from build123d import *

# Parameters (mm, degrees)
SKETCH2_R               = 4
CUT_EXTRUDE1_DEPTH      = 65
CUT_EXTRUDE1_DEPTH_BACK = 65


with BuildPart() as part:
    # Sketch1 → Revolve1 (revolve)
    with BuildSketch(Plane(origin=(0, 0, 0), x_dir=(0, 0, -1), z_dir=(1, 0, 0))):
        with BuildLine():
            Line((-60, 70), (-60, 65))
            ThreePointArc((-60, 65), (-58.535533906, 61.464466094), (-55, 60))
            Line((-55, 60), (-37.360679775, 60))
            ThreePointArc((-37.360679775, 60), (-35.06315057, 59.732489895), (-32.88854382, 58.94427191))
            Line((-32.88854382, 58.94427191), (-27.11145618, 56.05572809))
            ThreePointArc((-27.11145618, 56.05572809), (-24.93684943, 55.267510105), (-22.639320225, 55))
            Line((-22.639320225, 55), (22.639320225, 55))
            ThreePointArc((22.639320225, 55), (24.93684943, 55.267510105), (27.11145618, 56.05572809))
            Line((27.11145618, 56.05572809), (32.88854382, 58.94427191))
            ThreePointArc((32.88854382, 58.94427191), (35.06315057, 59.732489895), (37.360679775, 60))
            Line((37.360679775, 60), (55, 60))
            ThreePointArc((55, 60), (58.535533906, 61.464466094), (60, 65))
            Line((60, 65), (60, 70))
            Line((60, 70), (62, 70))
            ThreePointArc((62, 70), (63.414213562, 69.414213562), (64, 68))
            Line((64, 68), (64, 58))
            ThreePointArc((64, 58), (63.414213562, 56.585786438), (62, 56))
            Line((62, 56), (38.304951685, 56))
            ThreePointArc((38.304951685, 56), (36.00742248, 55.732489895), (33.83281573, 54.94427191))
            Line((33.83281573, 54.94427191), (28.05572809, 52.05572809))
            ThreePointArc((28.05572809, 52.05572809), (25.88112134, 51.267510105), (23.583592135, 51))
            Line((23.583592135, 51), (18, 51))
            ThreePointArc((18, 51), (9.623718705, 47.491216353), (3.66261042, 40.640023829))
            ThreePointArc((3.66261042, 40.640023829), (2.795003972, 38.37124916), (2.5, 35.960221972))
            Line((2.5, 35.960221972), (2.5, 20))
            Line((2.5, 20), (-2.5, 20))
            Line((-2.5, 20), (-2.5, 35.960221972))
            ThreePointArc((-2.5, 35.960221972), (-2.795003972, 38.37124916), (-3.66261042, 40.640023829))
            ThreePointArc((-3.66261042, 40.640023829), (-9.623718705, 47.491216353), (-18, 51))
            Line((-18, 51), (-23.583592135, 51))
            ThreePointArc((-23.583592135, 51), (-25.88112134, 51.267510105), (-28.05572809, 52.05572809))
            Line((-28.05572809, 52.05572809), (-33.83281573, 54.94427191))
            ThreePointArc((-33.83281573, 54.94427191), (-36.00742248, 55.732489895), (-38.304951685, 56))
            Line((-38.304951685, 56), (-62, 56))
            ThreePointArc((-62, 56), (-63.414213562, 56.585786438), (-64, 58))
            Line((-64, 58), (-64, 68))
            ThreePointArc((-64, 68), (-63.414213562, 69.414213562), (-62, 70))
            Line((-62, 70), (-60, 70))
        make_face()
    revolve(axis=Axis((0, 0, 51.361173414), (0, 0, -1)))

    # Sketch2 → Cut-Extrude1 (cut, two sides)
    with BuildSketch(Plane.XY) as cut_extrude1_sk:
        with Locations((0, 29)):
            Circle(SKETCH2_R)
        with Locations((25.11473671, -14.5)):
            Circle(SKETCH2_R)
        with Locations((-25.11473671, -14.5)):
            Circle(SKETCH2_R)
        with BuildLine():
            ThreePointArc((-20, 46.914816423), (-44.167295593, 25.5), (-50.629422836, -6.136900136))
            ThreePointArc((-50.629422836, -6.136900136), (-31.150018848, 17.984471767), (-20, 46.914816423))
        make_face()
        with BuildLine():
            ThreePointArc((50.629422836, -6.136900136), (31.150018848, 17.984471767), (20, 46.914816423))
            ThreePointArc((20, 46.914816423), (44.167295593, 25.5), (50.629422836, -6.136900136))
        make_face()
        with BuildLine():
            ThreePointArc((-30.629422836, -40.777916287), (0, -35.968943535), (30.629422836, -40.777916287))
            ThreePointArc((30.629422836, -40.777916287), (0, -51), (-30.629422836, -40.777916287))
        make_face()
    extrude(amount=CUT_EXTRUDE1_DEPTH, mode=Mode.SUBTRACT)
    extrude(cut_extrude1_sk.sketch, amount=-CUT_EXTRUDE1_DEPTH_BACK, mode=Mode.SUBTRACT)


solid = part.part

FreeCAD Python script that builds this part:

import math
import FreeCAD as App
import Part
import Sketcher
from FreeCAD import Vector

doc = App.newDocument("Part")
params = doc.addObject("Spreadsheet::Sheet", "Params")
for row, (alias, value) in enumerate([
    ("sketch1_radius", "2 mm"),
    ("sketch1_radius2", "10 mm"),
    ("sketch1_radius3", "20 mm"),
    ("sketch1_radius4", "5 mm"),
    ("sketch1_width", "5 mm"),
    ("revolution_angle", "360 deg"),
    ("sketch2_diameter", "8 mm"),
    ("sketch2_radius", "51 mm"),
], start=1):
    params.set(f"A{row}", alias)
    params.set(f"B{row}", "=" + value)
    params.setAlias(f"B{row}", alias)

body = doc.addObject("PartDesign::Body", "Body")

# Sketch on YZ plane
sketch1 = body.newObject("Sketcher::SketchObject", "Sketch")
sketch1.AttachmentSupport = (doc.getObject("YZ_Plane"), [""])
sketch1.MapMode = "FlatFace"
sketch1.addGeometry(Part.LineSegment(Vector(65, 60, 0), Vector(70, 60, 0)), False)
sketch1.addGeometry(Part.LineSegment(Vector(70, 60, 0), Vector(70, 62, 0)), False)
sketch1.addGeometry(Part.ArcOfCircle(Part.Circle(Vector(68, 62, 0), Vector(0, 0, 1), 2), math.radians(0), math.radians(90)), False)
sketch1.addGeometry(Part.LineSegment(Vector(68, 64, 0), Vector(58, 64, 0)), False)
sketch1.addGeometry(Part.ArcOfCircle(Part.Circle(Vector(58, 62, 0), Vector(0, 0, 1), 2), math.radians(90), math.radians(180)), False)
sketch1.addGeometry(Part.LineSegment(Vector(56, 62, 0), Vector(56, 38.3, 0)), False)
sketch1.addGeometry(Part.ArcOfCircle(Part.Circle(Vector(46, 38.3, 0), Vector(0, 0, 1), 10), math.radians(-27), math.radians(0)), False)
sketch1.addGeometry(Part.LineSegment(Vector(54.9, 33.8, 0), Vector(52.1, 28.1, 0)), False)
sketch1.addGeometry(Part.ArcOfCircle(Part.Circle(Vector(61, 23.6, 0), Vector(0, 0, 1), 10), math.radians(153), math.radians(180)), False)
sketch1.addGeometry(Part.LineSegment(Vector(51, 23.6, 0), Vector(51, 18, 0)), False)
sketch1.addGeometry(Part.ArcOfCircle(Part.Circle(Vector(31.3, 21.3, 0), Vector(0, 0, 1), 20), math.radians(-62), math.radians(-10)), False)
sketch1.addGeometry(Part.ArcOfCircle(Part.Circle(Vector(36, 12.5, 0), Vector(0, 0, 1), 10), math.radians(-90), math.radians(-62)), False)
sketch1.addGeometry(Part.LineSegment(Vector(36, 2.5, 0), Vector(20, 2.5, 0)), False)
sketch1.addGeometry(Part.LineSegment(Vector(20, 2.5, 0), Vector(20, -2.5, 0)), False)
sketch1.addGeometry(Part.LineSegment(Vector(20, -2.5, 0), Vector(36, -2.5, 0)), False)
sketch1.addGeometry(Part.ArcOfCircle(Part.Circle(Vector(36, -12.5, 0), Vector(0, 0, 1), 10), math.radians(62), math.radians(90)), False)
sketch1.addGeometry(Part.ArcOfCircle(Part.Circle(Vector(31.3, -21.3, 0), Vector(0, 0, 1), 20), math.radians(10), math.radians(62)), False)
sketch1.addGeometry(Part.LineSegment(Vector(51, -18, 0), Vector(51, -23.6, 0)), False)
sketch1.addGeometry(Part.ArcOfCircle(Part.Circle(Vector(61, -23.6, 0), Vector(0, 0, 1), 10), math.radians(180), math.radians(207)), False)
sketch1.addGeometry(Part.LineSegment(Vector(52.1, -28.1, 0), Vector(54.9, -33.8, 0)), False)
sketch1.addGeometry(Part.ArcOfCircle(Part.Circle(Vector(46, -38.3, 0), Vector(0, 0, 1), 10), math.radians(0), math.radians(27)), False)
sketch1.addGeometry(Part.LineSegment(Vector(56, -38.3, 0), Vector(56, -62, 0)), False)
sketch1.addGeometry(Part.ArcOfCircle(Part.Circle(Vector(58, -62, 0), Vector(0, 0, 1), 2), math.radians(-180), math.radians(-90)), False)
sketch1.addGeometry(Part.LineSegment(Vector(58, -64, 0), Vector(68, -64, 0)), False)
sketch1.addGeometry(Part.ArcOfCircle(Part.Circle(Vector(68, -62, 0), Vector(0, 0, 1), 2), math.radians(-90), math.radians(0)), False)
sketch1.addGeometry(Part.LineSegment(Vector(70, -62, 0), Vector(70, -60, 0)), False)
sketch1.addGeometry(Part.LineSegment(Vector(70, -60, 0), Vector(65, -60, 0)), False)
sketch1.addGeometry(Part.ArcOfCircle(Part.Circle(Vector(65, -55, 0), Vector(0, 0, 1), 5), math.radians(180), math.radians(270)), False)
sketch1.addGeometry(Part.LineSegment(Vector(60, -55, 0), Vector(60, -37.4, 0)), False)
sketch1.addGeometry(Part.ArcOfCircle(Part.Circle(Vector(50, -37.4, 0), Vector(0, 0, 1), 10), math.radians(0), math.radians(27)), False)
sketch1.addGeometry(Part.LineSegment(Vector(58.9, -32.9, 0), Vector(56.1, -27.1, 0)), False)
sketch1.addGeometry(Part.ArcOfCircle(Part.Circle(Vector(65, -22.6, 0), Vector(0, 0, 1), 10), math.radians(180), math.radians(207)), False)
sketch1.addGeometry(Part.LineSegment(Vector(55, -22.6, 0), Vector(55, 22.6, 0)), False)
sketch1.addGeometry(Part.ArcOfCircle(Part.Circle(Vector(65, 22.6, 0), Vector(0, 0, 1), 10), math.radians(153), math.radians(180)), False)
sketch1.addGeometry(Part.LineSegment(Vector(56.1, 27.1, 0), Vector(58.9, 32.9, 0)), False)
sketch1.addGeometry(Part.ArcOfCircle(Part.Circle(Vector(50, 37.4, 0), Vector(0, 0, 1), 10), math.radians(-27), math.radians(0)), False)
sketch1.addGeometry(Part.LineSegment(Vector(60, 37.4, 0), Vector(60, 55, 0)), False)
sketch1.addGeometry(Part.ArcOfCircle(Part.Circle(Vector(65, 55, 0), Vector(0, 0, 1), 5), math.radians(90), math.radians(180)), False)
sketch1.addConstraint(Sketcher.Constraint("Coincident", 0, 2, 1, 1))
sketch1.addConstraint(Sketcher.Constraint("Tangent", 1, 2, 2, 1))
sketch1.addConstraint(Sketcher.Constraint("Tangent", 2, 2, 3, 1))
sketch1.addConstraint(Sketcher.Constraint("Tangent", 3, 2, 4, 1))
sketch1.addConstraint(Sketcher.Constraint("Tangent", 4, 2, 5, 1))
sketch1.addConstraint(Sketcher.Constraint("Tangent", 5, 2, 6, 2))
sketch1.addConstraint(Sketcher.Constraint("Tangent", 6, 1, 7, 1))
sketch1.addConstraint(Sketcher.Constraint("Tangent", 7, 2, 8, 1))
sketch1.addConstraint(Sketcher.Constraint("Tangent", 8, 2, 9, 1))
sketch1.addConstraint(Sketcher.Constraint("Coincident", 9, 2, 10, 2))
sketch1.addConstraint(Sketcher.Constraint("Tangent", 10, 1, 11, 2))
sketch1.addConstraint(Sketcher.Constraint("Tangent", 11, 1, 12, 1))
sketch1.addConstraint(Sketcher.Constraint("Coincident", 12, 2, 13, 1))
sketch1.addConstraint(Sketcher.Constraint("Coincident", 13, 2, 14, 1))
sketch1.addConstraint(Sketcher.Constraint("Tangent", 14, 2, 15, 2))
sketch1.addConstraint(Sketcher.Constraint("Tangent", 15, 1, 16, 2))
sketch1.addConstraint(Sketcher.Constraint("Coincident", 16, 1, 17, 1))
sketch1.addConstraint(Sketcher.Constraint("Tangent", 17, 2, 18, 1))
sketch1.addConstraint(Sketcher.Constraint("Tangent", 18, 2, 19, 1))
sketch1.addConstraint(Sketcher.Constraint("Tangent", 19, 2, 20, 2))
sketch1.addConstraint(Sketcher.Constraint("Tangent", 20, 1, 21, 1))
sketch1.addConstraint(Sketcher.Constraint("Tangent", 21, 2, 22, 1))
sketch1.addConstraint(Sketcher.Constraint("Tangent", 22, 2, 23, 1))
sketch1.addConstraint(Sketcher.Constraint("Tangent", 23, 2, 24, 1))
sketch1.addConstraint(Sketcher.Constraint("Tangent", 24, 2, 25, 1))
sketch1.addConstraint(Sketcher.Constraint("Coincident", 25, 2, 26, 1))
sketch1.addConstraint(Sketcher.Constraint("Tangent", 26, 2, 27, 2))
sketch1.addConstraint(Sketcher.Constraint("Tangent", 27, 1, 28, 1))
sketch1.addConstraint(Sketcher.Constraint("Tangent", 28, 2, 29, 1))
sketch1.addConstraint(Sketcher.Constraint("Tangent", 29, 2, 30, 1))
sketch1.addConstraint(Sketcher.Constraint("Tangent", 30, 2, 31, 2))
sketch1.addConstraint(Sketcher.Constraint("Tangent", 31, 1, 32, 1))
sketch1.addConstraint(Sketcher.Constraint("Tangent", 32, 2, 33, 2))
sketch1.addConstraint(Sketcher.Constraint("Tangent", 33, 1, 34, 1))
sketch1.addConstraint(Sketcher.Constraint("Tangent", 34, 2, 35, 1))
sketch1.addConstraint(Sketcher.Constraint("Tangent", 35, 2, 36, 1))
sketch1.addConstraint(Sketcher.Constraint("Tangent", 36, 2, 37, 2))
sketch1.addConstraint(Sketcher.Constraint("Tangent", 37, 1, 0, 1))
sketch1.addConstraint(Sketcher.Constraint("Horizontal", 0))
sketch1.addConstraint(Sketcher.Constraint("Vertical", 1))
sketch1.addConstraint(Sketcher.Constraint("Horizontal", 3))
sketch1.addConstraint(Sketcher.Constraint("Vertical", 5))
sketch1.addConstraint(Sketcher.Constraint("Vertical", 9))
sketch1.addConstraint(Sketcher.Constraint("Horizontal", 12))
sketch1.addConstraint(Sketcher.Constraint("Vertical", 13))
sketch1.addConstraint(Sketcher.Constraint("Horizontal", 14))
sketch1.addConstraint(Sketcher.Constraint("Vertical", 17))
sketch1.addConstraint(Sketcher.Constraint("Vertical", 21))
sketch1.addConstraint(Sketcher.Constraint("Horizontal", 23))
sketch1.addConstraint(Sketcher.Constraint("Vertical", 25))
sketch1.addConstraint(Sketcher.Constraint("Horizontal", 26))
sketch1.addConstraint(Sketcher.Constraint("Vertical", 28))
sketch1.addConstraint(Sketcher.Constraint("Vertical", 32))
sketch1.addConstraint(Sketcher.Constraint("Vertical", 36))
sketch1.addConstraint(Sketcher.Constraint("Equal", 2, 4))
sketch1.addConstraint(Sketcher.Constraint("Equal", 6, 8))
sketch1.addConstraint(Sketcher.Constraint("Equal", 8, 11))
sketch1.addConstraint(Sketcher.Constraint("Equal", 11, 15))
sketch1.addConstraint(Sketcher.Constraint("Equal", 10, 16))
sketch1.addConstraint(Sketcher.Constraint("Equal", 15, 18))
sketch1.addConstraint(Sketcher.Constraint("Equal", 18, 20))
sketch1.addConstraint(Sketcher.Constraint("Equal", 4, 22))
sketch1.addConstraint(Sketcher.Constraint("Equal", 22, 24))
sketch1.addConstraint(Sketcher.Constraint("Equal", 20, 29))
sketch1.addConstraint(Sketcher.Constraint("Equal", 29, 31))
sketch1.addConstraint(Sketcher.Constraint("Equal", 31, 33))
sketch1.addConstraint(Sketcher.Constraint("Equal", 33, 35))
sketch1.addConstraint(Sketcher.Constraint("Equal", 27, 37))
sketch1.addConstraint(Sketcher.Constraint("Symmetric", 11, 3, 15, 3, -1))
sketch1.addConstraint(Sketcher.Constraint("Symmetric", 8, 3, 18, 3, -1))
sketch1.addConstraint(Sketcher.Constraint("Symmetric", 6, 3, 20, 3, -1))
sketch1.addConstraint(Sketcher.Constraint("Symmetric", 2, 3, 24, 3, -1))
sketch1.addConstraint(Sketcher.Constraint("Symmetric", 29, 3, 35, 3, -1))
sketch1.addConstraint(Sketcher.Constraint("Parallel", 19, 30))
sketch1.addConstraint(Sketcher.Constraint("Parallel", 7, 34))
sketch1.addConstraint(Sketcher.Constraint("Vertical", 10, 3, 16, 3))
sketch1.addConstraint(Sketcher.Constraint("Vertical", 27, 3, 31, 3))
sketch1.addConstraint(Sketcher.Constraint("Equal", 26, 13))
sketch1.addConstraint(Sketcher.Constraint("Equal", 1, 25))
sketch1.addConstraint(Sketcher.Constraint("Equal", 19, 30))
sketch1.addConstraint(Sketcher.Constraint("Radius", 2, 2.0))
sketch1.addConstraint(Sketcher.Constraint("Radius", 6, 10.0))
sketch1.addConstraint(Sketcher.Constraint("Radius", 10, 20.0))
sketch1.addConstraint(Sketcher.Constraint("Radius", 27, 5.0))
sketch1.addConstraint(Sketcher.Constraint("DistanceX", 0, 1, 0, 2, 5.0))
sketch1.addConstraint(Sketcher.Constraint("DistanceX", 3, 2, 3, 1, 10.0))
sketch1.addConstraint(Sketcher.Constraint("DistanceY", 1, 1, 1, 2, 2.0))
sketch1.addConstraint(Sketcher.Constraint("DistanceX", -1, 1, 2, 3, 68.0))
sketch1.addConstraint(Sketcher.Constraint("DistanceY", -1, 1, 2, 3, 62.0))
sketch1.addConstraint(Sketcher.Constraint("DistanceY", -1, 1, 9, 2, 18.0))
sketch1.addConstraint(Sketcher.Constraint("DistanceX", -1, 1, 12, 2, 20.0))
sketch1.addConstraint(Sketcher.Constraint("DistanceX", 12, 2, 12, 1, 15.960222))
sketch1.addConstraint(Sketcher.Constraint("DistanceY", 5, 2, 5, 1, 23.695048))
sketch1.addConstraint(Sketcher.Constraint("DistanceY", 28, 1, 28, 2, 17.63932))
sketch1.addConstraint(Sketcher.Constraint("DistanceY", 32, 1, 32, 2, 45.27864))
sketch1.setExpression("Constraints[80]", "Params.sketch1_radius")
sketch1.setExpression("Constraints[81]", "Params.sketch1_radius2")
sketch1.setExpression("Constraints[82]", "Params.sketch1_radius3")
sketch1.setExpression("Constraints[83]", "Params.sketch1_radius4")
sketch1.setExpression("Constraints[84]", "Params.sketch1_width")
revolution = body.newObject("PartDesign::Revolution", "Revolution")
revolution.Profile = sketch1
revolution.ReferenceAxis = (sketch1, ["V_Axis"])
revolution.setExpression("Angle", "Params.revolution_angle")

# Sketch on XY plane
sketch2 = body.newObject("Sketcher::SketchObject", "Sketch001")
sketch2.AttachmentSupport = (doc.getObject("XY_Plane"), [""])
sketch2.MapMode = "FlatFace"
sketch2.addGeometry(Part.Circle(Vector(0, 29, 0), Vector(0, 0, 1), 4), False)
sketch2.addGeometry(Part.Circle(Vector(25.1, -14.5, 0), Vector(0, 0, 1), 4), False)
sketch2.addGeometry(Part.Circle(Vector(-25.1, -14.5, 0), Vector(0, 0, 1), 4), False)
sketch2.addGeometry(Part.ArcOfCircle(Part.Circle(Vector(0, 0, 0), Vector(0, 0, 1), 51), math.radians(113), math.radians(187)), False)
sketch2.addGeometry(Part.ArcOfCircle(Part.Circle(Vector(-117.7, 68, 0), Vector(0, 0, 1), 99.9), math.radians(-48), math.radians(-12)), False)
sketch2.addGeometry(Part.ArcOfCircle(Part.Circle(Vector(117.7, 68, 0), Vector(0, 0, 1), 99.9), math.radians(-168), math.radians(-132)), False)
sketch2.addGeometry(Part.ArcOfCircle(Part.Circle(Vector(0, 0, 0), Vector(0, 0, 1), 51), math.radians(-7), math.radians(67)), False)
sketch2.addGeometry(Part.ArcOfCircle(Part.Circle(Vector(0, -135.9, 0), Vector(0, 0, 1), 99.9), math.radians(72), math.radians(108)), False)
sketch2.addGeometry(Part.ArcOfCircle(Part.Circle(Vector(0, 0, 0), Vector(0, 0, 1), 51), math.radians(-127), math.radians(-53)), False)
sketch2.addConstraint(Sketcher.Constraint("Coincident", 3, 1, 4, 2))
sketch2.addConstraint(Sketcher.Constraint("Coincident", 4, 1, 3, 2))
sketch2.addConstraint(Sketcher.Constraint("Coincident", 5, 1, 6, 2))
sketch2.addConstraint(Sketcher.Constraint("Coincident", 6, 1, 5, 2))
sketch2.addConstraint(Sketcher.Constraint("Coincident", 7, 1, 8, 2))
sketch2.addConstraint(Sketcher.Constraint("Coincident", 8, 1, 7, 2))
sketch2.addConstraint(Sketcher.Constraint("Coincident", 3, 3, -1, 1))
sketch2.addConstraint(Sketcher.Constraint("Coincident", 6, 3, -1, 1))
sketch2.addConstraint(Sketcher.Constraint("Coincident", 8, 3, -1, 1))
sketch2.addConstraint(Sketcher.Constraint("Equal", 0, 1))
sketch2.addConstraint(Sketcher.Constraint("Equal", 1, 2))
sketch2.addConstraint(Sketcher.Constraint("Equal", 4, 5))
sketch2.addConstraint(Sketcher.Constraint("Equal", 3, 6))
sketch2.addConstraint(Sketcher.Constraint("Equal", 5, 7))
sketch2.addConstraint(Sketcher.Constraint("Equal", 6, 8))
sketch2.addConstraint(Sketcher.Constraint("Symmetric", 1, 3, 2, 3, -2))
sketch2.addConstraint(Sketcher.Constraint("Symmetric", 4, 3, 5, 3, -2))
sketch2.addConstraint(Sketcher.Constraint("PointOnObject", 0, 3, -2))
sketch2.addConstraint(Sketcher.Constraint("PointOnObject", 7, 3, -2))
sketch2.addConstraint(Sketcher.Constraint("Diameter", 0, 8.0))
sketch2.addConstraint(Sketcher.Constraint("Radius", 3, 51.0))
sketch2.addConstraint(Sketcher.Constraint("DistanceY", -1, 1, 0, 3, 29.0))
sketch2.addConstraint(Sketcher.Constraint("DistanceX", 3, 1, -1, 1, 20.0))
sketch2.addConstraint(Sketcher.Constraint("DistanceX", 7, 1, 6, 1, 20.0))
sketch2.addConstraint(Sketcher.Constraint("DistanceY", 1, 3, -1, 1, 14.5))
sketch2.addConstraint(Sketcher.Constraint("Radius", 4, 99.947308))
sketch2.addConstraint(Sketcher.Constraint("DistanceY", 4, 1, -1, 1, 6.1369))
sketch2.addConstraint(Sketcher.Constraint("DistanceX", 4, 3, 2, 3, 92.59219))
sketch2.setExpression("Constraints[19]", "Params.sketch2_diameter")
sketch2.setExpression("Constraints[20]", "Params.sketch2_radius")
pocket1 = body.newObject("PartDesign::Pocket", "Pocket")
pocket1.Profile = sketch2
pocket1.Type = "ThroughAll"
pocket1.Midplane = True

doc.recompute()
